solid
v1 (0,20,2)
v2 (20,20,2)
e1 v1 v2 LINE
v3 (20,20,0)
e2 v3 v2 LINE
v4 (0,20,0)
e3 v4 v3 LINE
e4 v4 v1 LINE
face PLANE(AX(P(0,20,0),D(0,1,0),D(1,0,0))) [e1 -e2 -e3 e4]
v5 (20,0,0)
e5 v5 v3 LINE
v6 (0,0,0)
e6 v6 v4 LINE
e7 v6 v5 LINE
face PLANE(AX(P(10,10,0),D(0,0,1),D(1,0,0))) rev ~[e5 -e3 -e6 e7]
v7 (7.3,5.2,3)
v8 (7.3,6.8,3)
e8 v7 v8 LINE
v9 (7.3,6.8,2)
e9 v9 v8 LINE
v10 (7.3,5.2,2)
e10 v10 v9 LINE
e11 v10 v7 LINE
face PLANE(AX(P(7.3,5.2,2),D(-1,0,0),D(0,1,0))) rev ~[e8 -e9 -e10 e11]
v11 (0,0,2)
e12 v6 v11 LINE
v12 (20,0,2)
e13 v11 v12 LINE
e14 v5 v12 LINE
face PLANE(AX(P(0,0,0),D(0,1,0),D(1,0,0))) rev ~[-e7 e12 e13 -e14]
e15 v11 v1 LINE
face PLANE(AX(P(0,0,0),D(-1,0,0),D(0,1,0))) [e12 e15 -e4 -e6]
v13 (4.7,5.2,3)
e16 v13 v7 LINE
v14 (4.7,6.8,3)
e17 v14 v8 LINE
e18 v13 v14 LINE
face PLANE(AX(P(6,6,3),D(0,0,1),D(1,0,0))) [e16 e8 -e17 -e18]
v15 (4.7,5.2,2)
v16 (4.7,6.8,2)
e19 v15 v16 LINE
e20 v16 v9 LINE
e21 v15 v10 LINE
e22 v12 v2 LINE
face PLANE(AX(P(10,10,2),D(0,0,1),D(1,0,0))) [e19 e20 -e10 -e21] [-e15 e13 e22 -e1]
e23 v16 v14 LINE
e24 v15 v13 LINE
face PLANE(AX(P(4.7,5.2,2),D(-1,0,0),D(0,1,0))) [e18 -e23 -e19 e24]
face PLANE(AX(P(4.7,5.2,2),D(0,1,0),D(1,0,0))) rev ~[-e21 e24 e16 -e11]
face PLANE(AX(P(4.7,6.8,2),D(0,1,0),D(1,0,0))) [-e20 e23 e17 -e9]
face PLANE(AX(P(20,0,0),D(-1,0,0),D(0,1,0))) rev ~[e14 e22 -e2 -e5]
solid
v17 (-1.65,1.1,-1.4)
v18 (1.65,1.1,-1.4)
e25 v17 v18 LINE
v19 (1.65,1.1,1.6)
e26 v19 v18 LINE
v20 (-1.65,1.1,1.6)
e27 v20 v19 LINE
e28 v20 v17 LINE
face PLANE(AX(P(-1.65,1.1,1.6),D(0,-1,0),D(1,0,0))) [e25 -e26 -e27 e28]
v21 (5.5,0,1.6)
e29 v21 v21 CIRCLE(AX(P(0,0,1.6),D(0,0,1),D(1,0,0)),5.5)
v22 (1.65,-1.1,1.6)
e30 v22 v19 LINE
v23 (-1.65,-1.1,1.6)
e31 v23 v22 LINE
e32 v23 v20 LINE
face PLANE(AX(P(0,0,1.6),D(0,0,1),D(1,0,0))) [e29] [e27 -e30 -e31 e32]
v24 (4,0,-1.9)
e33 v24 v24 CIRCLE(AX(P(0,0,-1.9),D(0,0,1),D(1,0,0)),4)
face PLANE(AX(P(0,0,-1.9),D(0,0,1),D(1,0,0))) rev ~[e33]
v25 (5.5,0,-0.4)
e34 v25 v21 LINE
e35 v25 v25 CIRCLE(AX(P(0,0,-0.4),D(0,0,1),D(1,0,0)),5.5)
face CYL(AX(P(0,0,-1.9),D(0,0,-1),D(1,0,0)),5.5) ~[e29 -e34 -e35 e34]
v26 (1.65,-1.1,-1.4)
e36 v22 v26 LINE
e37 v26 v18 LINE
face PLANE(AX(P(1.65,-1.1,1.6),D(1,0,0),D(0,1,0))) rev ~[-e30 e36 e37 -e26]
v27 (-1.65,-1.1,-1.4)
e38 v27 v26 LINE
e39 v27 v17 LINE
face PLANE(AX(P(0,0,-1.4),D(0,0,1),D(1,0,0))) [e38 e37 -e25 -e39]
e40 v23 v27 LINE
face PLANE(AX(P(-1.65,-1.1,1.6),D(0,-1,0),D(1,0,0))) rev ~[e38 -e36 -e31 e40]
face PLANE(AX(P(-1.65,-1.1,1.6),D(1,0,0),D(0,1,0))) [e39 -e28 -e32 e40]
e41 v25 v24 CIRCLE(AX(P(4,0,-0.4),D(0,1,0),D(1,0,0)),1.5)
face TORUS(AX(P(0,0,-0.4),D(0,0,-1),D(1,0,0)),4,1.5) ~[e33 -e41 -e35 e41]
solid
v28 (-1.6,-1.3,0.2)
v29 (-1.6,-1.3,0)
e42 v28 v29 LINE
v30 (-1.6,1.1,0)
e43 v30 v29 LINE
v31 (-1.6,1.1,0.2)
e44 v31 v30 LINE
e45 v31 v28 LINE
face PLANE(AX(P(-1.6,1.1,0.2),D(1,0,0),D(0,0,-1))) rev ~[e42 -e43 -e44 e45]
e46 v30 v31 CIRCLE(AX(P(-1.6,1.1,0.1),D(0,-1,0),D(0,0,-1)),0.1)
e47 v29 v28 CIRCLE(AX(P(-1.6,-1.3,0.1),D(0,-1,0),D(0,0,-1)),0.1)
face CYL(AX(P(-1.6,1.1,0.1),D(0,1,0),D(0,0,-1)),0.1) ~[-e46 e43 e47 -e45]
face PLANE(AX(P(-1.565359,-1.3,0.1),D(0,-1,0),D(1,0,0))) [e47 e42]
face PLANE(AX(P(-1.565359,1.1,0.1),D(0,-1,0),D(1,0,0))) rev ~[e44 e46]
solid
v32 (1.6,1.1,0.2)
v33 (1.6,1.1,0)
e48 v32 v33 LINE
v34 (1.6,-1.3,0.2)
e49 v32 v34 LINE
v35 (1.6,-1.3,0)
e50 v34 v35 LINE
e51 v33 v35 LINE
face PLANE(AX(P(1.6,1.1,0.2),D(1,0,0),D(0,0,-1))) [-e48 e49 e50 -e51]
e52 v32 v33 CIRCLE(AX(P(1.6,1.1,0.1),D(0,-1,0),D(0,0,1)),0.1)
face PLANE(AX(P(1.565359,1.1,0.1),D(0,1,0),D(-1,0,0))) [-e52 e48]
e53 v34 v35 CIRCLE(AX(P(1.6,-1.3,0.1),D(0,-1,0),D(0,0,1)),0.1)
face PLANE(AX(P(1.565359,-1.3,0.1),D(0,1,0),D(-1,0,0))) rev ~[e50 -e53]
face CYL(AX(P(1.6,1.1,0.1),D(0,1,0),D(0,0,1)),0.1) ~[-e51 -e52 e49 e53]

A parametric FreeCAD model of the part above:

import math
import FreeCAD as App
import Part
import Sketcher

V = App.Vector
Q = App.Units.Quantity


def edges_at(feature, points):
    """Names of the edges that pass closest to the given points."""
    edges = feature.Shape.Edges
    near = lambda p: min(range(len(edges)), key=lambda i: edges[i].distToShape(Part.Vertex(*p))[0])
    return sorted({f"Edge{near(p) + 1}" for p in points})


def add_polygon(sketch, points):
    """Adds a closed chain of lines whose ends are joined by coincident constraints."""
    first, n = sketch.GeometryCount, len(points)
    for a, b in zip(points, points[1:] + points[:1]):
        sketch.addGeometry(Part.LineSegment(App.Vector(*a, 0), App.Vector(*b, 0)), False)
    for i in range(n):
        sketch.addConstraint(Sketcher.Constraint("Coincident", first + i, 2, first + (i + 1) % n, 1))

doc = App.newDocument("Part")
body = doc.addObject("PartDesign::Body", "Body")
body.AllowCompound = True

# Sketch on XZ plane
sketch1 = doc.addObject("Sketcher::SketchObject", "Sketch")
body.addObject(sketch1)
sketch1.AttachmentSupport = (doc.XZ_Plane, [""])
sketch1.MapMode = "FlatFace"
sketch1.AttachmentOffset = App.Placement(V(0, 0, -1.1), App.Rotation())
sketch1.addGeometry(Part.LineSegment(V(-1.6, 0.2, 0), V(-1.6, 0, 0)), False)
sketch1.addGeometry(Part.ArcOfCircle(Part.Circle(V(-1.6, 0.1, 0), V(0, 0, 1), 0.1), math.radians(-90), math.radians(90)), False)
sketch1.addGeometry(Part.LineSegment(V(1.6, 0, 0), V(1.6, 0.2, 0)), False)
sketch1.addGeometry(Part.ArcOfCircle(Part.Circle(V(1.6, 0.1, 0), V(0, 0, 1), 0.1), math.radians(90), math.radians(270)), False)
sketch1.addConstraint(Sketcher.Constraint("Coincident", 0, 1, 1, 2))
sketch1.addConstraint(Sketcher.Constraint("Coincident", 1, 1, 0, 2))
sketch1.addConstraint(Sketcher.Constraint("Coincident", 2, 1, 3, 2))
sketch1.addConstraint(Sketcher.Constraint("Coincident", 3, 1, 2, 2))
sketch1.addConstraint(Sketcher.Constraint("Vertical", 0))
sketch1.addConstraint(Sketcher.Constraint("Vertical", 2))
sketch1.addConstraint(Sketcher.Constraint("Equal", 1, 3))
sketch1.addConstraint(Sketcher.Constraint("Symmetric", 1, 1, 2, 1, -1, 1))
sketch1.addConstraint(Sketcher.Constraint("Symmetric", 1, 3, 3, 3, -2))
sketch1.addConstraint(Sketcher.Constraint("Vertical", 1, 3, 0, 1))
sketch1.addConstraint(Sketcher.Constraint("Radius", 1, Q("0.1 mm")))
sketch1.addConstraint(Sketcher.Constraint("DistanceX", 1, 3, -1, 1, Q("1.6 mm")))
pad1 = doc.addObject("PartDesign::Pad", "Pad")
body.addObject(pad1)
pad1.Profile = sketch1
pad1.Length = 2.4
body2 = doc.addObject("PartDesign::Body", "Body001")

# Sketch on XY plane
sketch2 = doc.addObject("Sketcher::SketchObject", "Sketch001")
body2.addObject(sketch2)
sketch2.AttachmentSupport = (doc.getObject("XY_Plane001"), [""])
sketch2.MapMode = "FlatFace"
sketch2.AttachmentOffset = App.Placement(V(0, 0, -1.9), App.Rotation())
sketch2.addGeometry(Part.Circle(V(0, 0, 0), V(0, 0, 1), 5.5), False)
sketch2.addConstraint(Sketcher.Constraint("Coincident", 0, 3, -1, 1))
sketch2.addConstraint(Sketcher.Constraint("Diameter", 0, Q("11 mm")))
pad2 = doc.addObject("PartDesign::Pad", "Pad001")
body2.addObject(pad2)
pad2.Profile = sketch2
pad2.Length = 3.5

# Sketch on XY plane
sketch3 = doc.addObject("Sketcher::SketchObject", "Sketch002")
body2.addObject(sketch3)
sketch3.AttachmentSupport = (doc.getObject("XY_Plane001"), [""])
sketch3.MapMode = "FlatFace"
sketch3.AttachmentOffset = App.Placement(V(0, 0, 1.6), App.Rotation())
add_polygon(sketch3, [(-1.65, 1.1), (-1.65, -1.1), (1.65, -1.1), (1.65, 1.1)])  # lines 0-3
sketch3.addConstraint(Sketcher.Constraint("Vertical", 0))
sketch3.addConstraint(Sketcher.Constraint("Horizontal", 1))
sketch3.addConstraint(Sketcher.Constraint("Vertical", 2))
sketch3.addConstraint(Sketcher.Constraint("Horizontal", 3))
sketch3.addConstraint(Sketcher.Constraint("Symmetric", 0, 2, 2, 2, -1, 1))
sketch3.addConstraint(Sketcher.Constraint("DistanceX", 1, 1, 1, 2, Q("3.3 mm")))
sketch3.addConstraint(Sketcher.Constraint("DistanceY", 0, 2, 0, 1, Q("2.2 mm")))
pocket1 = doc.addObject("PartDesign::Pocket", "Pocket")
body2.addObject(pocket1)
pocket1.Profile = sketch3
pocket1.Length = 3
doc.recompute()

fillet = doc.addObject("PartDesign::Fillet", "Fillet")
body2.addObject(fillet)
fillet.Base = (pocket1, edges_at(pocket1, [(-5.5, 0, -1.9)]))
fillet.Radius = 1.5
body3 = doc.addObject("PartDesign::Body", "Body002")

# Sketch on XY plane
sketch4 = doc.addObject("Sketcher::SketchObject", "Sketch003")
body3.addObject(sketch4)
sketch4.AttachmentSupport = (doc.getObject("XY_Plane002"), [""])
sketch4.MapMode = "FlatFace"
add_polygon(sketch4, [(0, 20), (0, 0), (20, 0), (20, 20)])  # lines 0-3
sketch4.addConstraint(Sketcher.Constraint("Vertical", 0))
sketch4.addConstraint(Sketcher.Constraint("Horizontal", 1))
sketch4.addConstraint(Sketcher.Constraint("Vertical", 2))
sketch4.addConstraint(Sketcher.Constraint("Horizontal", 3))
sketch4.addConstraint(Sketcher.Constraint("Coincident", 0, 2, -1, 1))
sketch4.addConstraint(Sketcher.Constraint("Equal", 3, 0))
sketch4.addConstraint(Sketcher.Constraint("DistanceX", 1, 1, 1, 2, Q("20 mm")))
pad3 = doc.addObject("PartDesign::Pad", "Pad002")
body3.addObject(pad3)
pad3.Profile = sketch4
pad3.Length = 2

# Sketch on XY plane
sketch5 = doc.addObject("Sketcher::SketchObject", "Sketch004")
body3.addObject(sketch5)
sketch5.AttachmentSupport = (doc.getObject("XY_Plane002"), [""])
sketch5.MapMode = "FlatFace"
sketch5.AttachmentOffset = App.Placement(V(0, 0, 2), App.Rotation())
add_polygon(sketch5, [(4.7, 6.8), (4.7, 5.2), (7.3, 5.2), (7.3, 6.8)])  # lines 0-3
sketch5.addConstraint(Sketcher.Constraint("Vertical", 0))
sketch5.addConstraint(Sketcher.Constraint("Horizontal", 1))
sketch5.addConstraint(Sketcher.Constraint("Vertical", 2))
sketch5.addConstraint(Sketcher.Constraint("Horizontal", 3))
sketch5.addConstraint(Sketcher.Constraint("DistanceX", 1, 1, 1, 2, Q("2.6 mm")))
sketch5.addConstraint(Sketcher.Constraint("DistanceY", 0, 2, 0, 1, Q("1.6 mm")))
sketch5.addConstraint(Sketcher.Constraint("DistanceX", -1, 1, 0, 2, Q("4.7 mm")))
sketch5.addConstraint(Sketcher.Constraint("DistanceY", -1, 1, 0, 2, Q("5.2 mm")))
pad4 = doc.addObject("PartDesign::Pad", "Pad003")
body3.addObject(pad4)
pad4.Profile = sketch5
pad4.Length = 1

doc.recompute()
